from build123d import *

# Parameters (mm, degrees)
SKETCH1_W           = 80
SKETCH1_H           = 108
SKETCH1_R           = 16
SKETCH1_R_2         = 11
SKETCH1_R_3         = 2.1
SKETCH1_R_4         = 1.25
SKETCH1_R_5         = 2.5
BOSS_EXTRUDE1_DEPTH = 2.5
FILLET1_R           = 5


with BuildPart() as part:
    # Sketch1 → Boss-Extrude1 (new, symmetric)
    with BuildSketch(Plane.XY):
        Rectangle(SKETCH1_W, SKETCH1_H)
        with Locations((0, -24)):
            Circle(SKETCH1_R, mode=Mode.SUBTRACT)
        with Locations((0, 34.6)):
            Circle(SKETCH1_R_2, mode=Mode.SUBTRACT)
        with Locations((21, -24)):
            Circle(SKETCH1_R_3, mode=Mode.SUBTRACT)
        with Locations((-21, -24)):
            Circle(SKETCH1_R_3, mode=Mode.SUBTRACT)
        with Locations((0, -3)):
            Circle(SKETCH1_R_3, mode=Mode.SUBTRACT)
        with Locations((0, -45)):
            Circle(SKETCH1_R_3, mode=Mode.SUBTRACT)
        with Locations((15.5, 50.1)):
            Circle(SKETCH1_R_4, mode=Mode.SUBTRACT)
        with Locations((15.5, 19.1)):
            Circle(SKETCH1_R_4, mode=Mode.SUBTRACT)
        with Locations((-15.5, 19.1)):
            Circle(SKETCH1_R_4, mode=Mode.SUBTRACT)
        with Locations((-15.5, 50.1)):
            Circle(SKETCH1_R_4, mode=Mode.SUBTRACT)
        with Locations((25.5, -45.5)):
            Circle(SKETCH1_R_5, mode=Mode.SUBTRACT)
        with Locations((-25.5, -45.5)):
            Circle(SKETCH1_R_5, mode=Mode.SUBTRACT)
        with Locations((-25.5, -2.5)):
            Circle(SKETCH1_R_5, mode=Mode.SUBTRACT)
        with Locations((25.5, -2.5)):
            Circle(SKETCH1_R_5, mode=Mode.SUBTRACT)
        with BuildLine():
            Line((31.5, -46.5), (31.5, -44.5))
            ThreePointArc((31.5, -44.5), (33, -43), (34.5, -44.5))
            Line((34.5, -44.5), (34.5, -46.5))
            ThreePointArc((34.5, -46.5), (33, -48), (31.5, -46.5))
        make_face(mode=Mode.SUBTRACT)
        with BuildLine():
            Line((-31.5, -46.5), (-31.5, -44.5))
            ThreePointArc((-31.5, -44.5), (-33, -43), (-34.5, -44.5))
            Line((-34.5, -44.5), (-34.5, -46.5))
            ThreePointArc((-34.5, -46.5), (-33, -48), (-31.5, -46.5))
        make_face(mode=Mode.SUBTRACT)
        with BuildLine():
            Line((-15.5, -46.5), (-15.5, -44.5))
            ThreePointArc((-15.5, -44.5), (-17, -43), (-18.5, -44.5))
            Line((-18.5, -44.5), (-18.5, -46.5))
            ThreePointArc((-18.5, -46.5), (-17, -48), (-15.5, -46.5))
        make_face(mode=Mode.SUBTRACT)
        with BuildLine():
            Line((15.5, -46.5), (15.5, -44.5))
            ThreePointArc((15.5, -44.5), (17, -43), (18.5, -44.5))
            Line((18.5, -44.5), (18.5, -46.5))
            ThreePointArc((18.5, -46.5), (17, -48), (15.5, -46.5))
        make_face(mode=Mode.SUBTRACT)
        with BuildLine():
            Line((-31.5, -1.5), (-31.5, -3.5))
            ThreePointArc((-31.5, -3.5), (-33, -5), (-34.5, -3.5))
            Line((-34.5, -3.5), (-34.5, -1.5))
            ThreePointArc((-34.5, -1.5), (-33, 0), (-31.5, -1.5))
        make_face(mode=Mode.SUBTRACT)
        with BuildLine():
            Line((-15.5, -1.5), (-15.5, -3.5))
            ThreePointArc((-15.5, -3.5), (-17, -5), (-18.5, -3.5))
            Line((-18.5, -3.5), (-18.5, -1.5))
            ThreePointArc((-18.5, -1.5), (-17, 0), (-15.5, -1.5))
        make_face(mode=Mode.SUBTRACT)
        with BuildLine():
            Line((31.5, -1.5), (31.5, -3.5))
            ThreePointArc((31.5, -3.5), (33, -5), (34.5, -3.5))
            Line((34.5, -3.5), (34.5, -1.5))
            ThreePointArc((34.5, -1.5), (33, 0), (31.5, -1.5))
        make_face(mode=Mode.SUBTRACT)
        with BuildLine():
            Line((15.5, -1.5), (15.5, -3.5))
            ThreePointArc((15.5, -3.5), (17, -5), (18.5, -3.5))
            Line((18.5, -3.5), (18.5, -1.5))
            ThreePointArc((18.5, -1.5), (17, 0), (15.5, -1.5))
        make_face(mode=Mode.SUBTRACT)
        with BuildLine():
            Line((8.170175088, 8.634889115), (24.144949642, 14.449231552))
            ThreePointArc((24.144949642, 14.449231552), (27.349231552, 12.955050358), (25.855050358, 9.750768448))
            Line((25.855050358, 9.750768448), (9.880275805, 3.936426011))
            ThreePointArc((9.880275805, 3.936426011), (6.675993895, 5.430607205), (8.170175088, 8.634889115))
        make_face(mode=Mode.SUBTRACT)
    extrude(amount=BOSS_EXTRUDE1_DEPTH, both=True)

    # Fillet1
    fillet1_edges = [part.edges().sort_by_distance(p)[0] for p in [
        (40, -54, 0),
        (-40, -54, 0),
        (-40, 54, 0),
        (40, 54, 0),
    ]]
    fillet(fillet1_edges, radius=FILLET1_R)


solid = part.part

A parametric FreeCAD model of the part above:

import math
import FreeCAD as App
import Part
import Sketcher
Q = App.Units.Quantity


def edges_at(feature, points):
    """Names of the edges that pass closest to the given points."""
    edges = feature.Shape.Edges
    near = lambda p: min(range(len(edges)), key=lambda i: edges[i].distToShape(Part.Vertex(*p))[0])
    return sorted({f"Edge{near(p) + 1}" for p in points})


def add_polygon(sketch, points):
    """Adds a closed chain of lines whose ends are joined by coincident constraints."""
    first, n = sketch.GeometryCount, len(points)
    for a, b in zip(points, points[1:] + points[:1]):
        sketch.addGeometry(Part.LineSegment(App.Vector(*a, 0), App.Vector(*b, 0)), False)
    for i in range(n):
        sketch.addConstraint(Sketcher.Constraint("Coincident", first + i, 2, first + (i + 1) % n, 1))

doc = App.newDocument("Part")
body = doc.addObject("PartDesign::Body", "Body")

# Sketch on XY plane
sketch1 = body.newObject("Sketcher::SketchObject", "Sketch")
sketch1.AttachmentSupport = (doc.getObject("XY_Plane"), [""])
sketch1.MapMode = "FlatFace"
add_polygon(sketch1, [(-40, 54), (-40, -54), (40, -54), (40, 54)])  # lines 0-3
sketch1.addGeometry(Part.LineSegment(App.Vector(-31.5, -44.5, 0), App.Vector(-31.5, -46.5, 0)), False)  # 4
sketch1.addGeometry(Part.ArcOfCircle(Part.Circle(App.Vector(-33, -46.5, 0), App.Vector(0, 0, 1), 1.5), math.radians(180), math.radians(360)), False)  # 5
sketch1.addGeometry(Part.LineSegment(App.Vector(-34.5, -46.5, 0), App.Vector(-34.5, -44.5, 0)), False)  # 6
sketch1.addGeometry(Part.ArcOfCircle(Part.Circle(App.Vector(-33, -44.5, 0), App.Vector(0, 0, 1), 1.5), math.radians(0), math.radians(180)), False)  # 7
sketch1.addGeometry(Part.Circle(App.Vector(-25.5, -45.5, 0), App.Vector(0, 0, 1), 2.5), False)  # 8
sketch1.addGeometry(Part.Circle(App.Vector(-21, -24, 0), App.Vector(0, 0, 1), 2.1), False)  # 9
sketch1.addGeometry(Part.LineSegment(App.Vector(-15.5, -44.5, 0), App.Vector(-15.5, -46.5, 0)), False)  # 10
sketch1.addGeometry(Part.ArcOfCircle(Part.Circle(App.Vector(-17, -46.5, 0), App.Vector(0, 0, 1), 1.5), math.radians(180), math.radians(360)), False)  # 11
sketch1.addGeometry(Part.LineSegment(App.Vector(-18.5, -46.5, 0), App.Vector(-18.5, -44.5, 0)), False)  # 12
sketch1.addGeometry(Part.ArcOfCircle(Part.Circle(App.Vector(-17, -44.5, 0), App.Vector(0, 0, 1), 1.5), math.radians(0), math.radians(180)), False)  # 13
sketch1.addGeometry(Part.ArcOfCircle(Part.Circle(App.Vector(-33, -1.5, 0), App.Vector(0, 0, 1), 1.5), math.radians(0), math.radians(180)), False)  # 14
sketch1.addGeometry(Part.LineSegment(App.Vector(-31.5, -1.5, 0), App.Vector(-31.5, -3.5, 0)), False)  # 15
sketch1.addGeometry(Part.ArcOfCircle(Part.Circle(App.Vector(-33, -3.5, 0), App.Vector(0, 0, 1), 1.5), math.radians(180), math.radians(360)), False)  # 16
sketch1.addGeometry(Part.LineSegment(App.Vector(-34.5, -3.5, 0), App.Vector(-34.5, -1.5, 0)), False)  # 17
sketch1.addGeometry(Part.Circle(App.Vector(-25.5, -2.5, 0), App.Vector(0, 0, 1), 2.5), False)  # 18
sketch1.addGeometry(Part.ArcOfCircle(Part.Circle(App.Vector(-17, -1.5, 0), App.Vector(0, 0, 1), 1.5), math.radians(0), math.radians(180)), False)  # 19
sketch1.addGeometry(Part.LineSegment(App.Vector(-15.5, -1.5, 0), App.Vector(-15.5, -3.5, 0)), False)  # 20
sketch1.addGeometry(Part.ArcOfCircle(Part.Circle(App.Vector(-17, -3.5, 0), App.Vector(0, 0, 1), 1.5), math.radians(180), math.radians(360)), False)  # 21
sketch1.addGeometry(Part.LineSegment(App.Vector(-18.5, -3.5, 0), App.Vector(-18.5, -1.5, 0)), False)  # 22
sketch1.addGeometry(Part.Circle(App.Vector(0, -45, 0), App.Vector(0, 0, 1), 2.1), False)  # 23
sketch1.addGeometry(Part.ArcOfCircle(Part.Circle(App.Vector(17, -46.5, 0), App.Vector(0, 0, 1), 1.5), math.radians(180), math.radians(360)), False)  # 24
sketch1.addGeometry(Part.LineSegment(App.Vector(15.5, -46.5, 0), App.Vector(15.5, -44.5, 0)), False)  # 25
sketch1.addGeometry(Part.ArcOfCircle(Part.Circle(App.Vector(17, -44.5, 0), App.Vector(0, 0, 1), 1.5), math.radians(0), math.radians(180)), False)  # 26
sketch1.addGeometry(Part.LineSegment(App.Vector(18.5, -44.5, 0), App.Vector(18.5, -46.5, 0)), False)  # 27
sketch1.addGeometry(Part.Circle(App.Vector(0, -24, 0), App.Vector(0, 0, 1), 16), False)  # 28
sketch1.addGeometry(Part.Circle(App.Vector(25.5, -45.5, 0), App.Vector(0, 0, 1), 2.5), False)  # 29
sketch1.addGeometry(Part.ArcOfCircle(Part.Circle(App.Vector(33, -46.5, 0), App.Vector(0, 0, 1), 1.5), math.radians(180), math.radians(360)), False)  # 30
sketch1.addGeometry(Part.LineSegment(App.Vector(31.5, -46.5, 0), App.Vector(31.5, -44.5, 0)), False)  # 31
sketch1.addGeometry(Part.ArcOfCircle(Part.Circle(App.Vector(33, -44.5, 0), App.Vector(0, 0, 1), 1.5), math.radians(0), math.radians(180)), False)  # 32
sketch1.addGeometry(Part.LineSegment(App.Vector(34.5, -44.5, 0), App.Vector(34.5, -46.5, 0)), False)  # 33
sketch1.addGeometry(Part.Circle(App.Vector(21, -24, 0), App.Vector(0, 0, 1), 2.1), False)  # 34
sketch1.addGeometry(Part.Circle(App.Vector(0, -3, 0), App.Vector(0, 0, 1), 2.1), False)  # 35
sketch1.addGeometry(Part.LineSegment(App.Vector(15.5, -3.5, 0), App.Vector(15.5, -1.5, 0)), False)  # 36
sketch1.addGeometry(Part.ArcOfCircle(Part.Circle(App.Vector(17, -1.5, 0), App.Vector(0, 0, 1), 1.5), math.radians(0), math.radians(180)), False)  # 37
sketch1.addGeometry(Part.LineSegment(App.Vector(18.5, -1.5, 0), App.Vector(18.5, -3.5, 0)), False)  # 38
sketch1.addGeometry(Part.ArcOfCircle(Part.Circle(App.Vector(17, -3.5, 0), App.Vector(0, 0, 1), 1.5), math.radians(180), math.radians(360)), False)  # 39
sketch1.addGeometry(Part.Circle(App.Vector(25.5, -2.5, 0), App.Vector(0, 0, 1), 2.5), False)  # 40
sketch1.addGeometry(Part.LineSegment(App.Vector(31.5, -3.5, 0), App.Vector(31.5, -1.5, 0)), False)  # 41
sketch1.addGeometry(Part.ArcOfCircle(Part.Circle(App.Vector(33, -1.5, 0), App.Vector(0, 0, 1), 1.5), math.radians(0), math.radians(180)), False)  # 42
sketch1.addGeometry(Part.LineSegment(App.Vector(34.5, -1.5, 0), App.Vector(34.5, -3.5, 0)), False)  # 43
sketch1.addGeometry(Part.ArcOfCircle(Part.Circle(App.Vector(33, -3.5, 0), App.Vector(0, 0, 1), 1.5), math.radians(180), math.radians(360)), False)  # 44
sketch1.addGeometry(Part.Circle(App.Vector(-15.5, 19.1, 0), App.Vector(0, 0, 1), 1.25), False)  # 45
sketch1.addGeometry(Part.Circle(App.Vector(-15.5, 50.1, 0), App.Vector(0, 0, 1), 1.25), False)  # 46
sketch1.addGeometry(Part.ArcOfCircle(Part.Circle(App.Vector(9.025225, 6.285658, 0), App.Vector(0, 0, 1), 2.5), math.radians(110), math.radians(290)), False)  # 47
sketch1.addGeometry(Part.LineSegment(App.Vector(8.170175, 8.634889, 0), App.Vector(24.14495, 14.449232, 0)), False)  # 48
sketch1.addGeometry(Part.ArcOfCircle(Part.Circle(App.Vector(25, 12.1, 0), App.Vector(0, 0, 1), 2.5), math.radians(-70), math.radians(110)), False)  # 49
sketch1.addGeometry(Part.LineSegment(App.Vector(25.85505, 9.750768, 0), App.Vector(9.880276, 3.936426, 0)), False)  # 50
sketch1.addGeometry(Part.Circle(App.Vector(15.5, 19.1, 0), App.Vector(0, 0, 1), 1.25), False)  # 51
sketch1.addGeometry(Part.Circle(App.Vector(0, 34.6, 0), App.Vector(0, 0, 1), 11), False)  # 52
sketch1.addGeometry(Part.Circle(App.Vector(15.5, 50.1, 0), App.Vector(0, 0, 1), 1.25), False)  # 53
sketch1.addConstraint(Sketcher.Constraint("Tangent", 4, 2, 5, 2))
sketch1.addConstraint(Sketcher.Constraint("Tangent", 5, 1, 6, 1))
sketch1.addConstraint(Sketcher.Constraint("Tangent", 6, 2, 7, 2))
sketch1.addConstraint(Sketcher.Constraint("Tangent", 7, 1, 4, 1))
sketch1.addConstraint(Sketcher.Constraint("Tangent", 10, 2, 11, 2))
sketch1.addConstraint(Sketcher.Constraint("Tangent", 11, 1, 12, 1))
sketch1.addConstraint(Sketcher.Constraint("Tangent", 12, 2, 13, 2))
sketch1.addConstraint(Sketcher.Constraint("Tangent", 13, 1, 10, 1))
sketch1.addConstraint(Sketcher.Constraint("Tangent", 14, 1, 15, 1))
sketch1.addConstraint(Sketcher.Constraint("Tangent", 15, 2, 16, 2))
sketch1.addConstraint(Sketcher.Constraint("Tangent", 16, 1, 17, 1))
sketch1.addConstraint(Sketcher.Constraint("Tangent", 17, 2, 14, 2))
sketch1.addConstraint(Sketcher.Constraint("Tangent", 19, 1, 20, 1))
sketch1.addConstraint(Sketcher.Constraint("Tangent", 20, 2, 21, 2))
sketch1.addConstraint(Sketcher.Constraint("Tangent", 21, 1, 22, 1))
sketch1.addConstraint(Sketcher.Constraint("Tangent", 22, 2, 19, 2))
sketch1.addConstraint(Sketcher.Constraint("Tangent", 24, 1, 25, 1))
sketch1.addConstraint(Sketcher.Constraint("Tangent", 25, 2, 26, 2))
sketch1.addConstraint(Sketcher.Constraint("Tangent", 26, 1, 27, 1))
sketch1.addConstraint(Sketcher.Constraint("Tangent", 27, 2, 24, 2))
sketch1.addConstraint(Sketcher.Constraint("Tangent", 30, 1, 31, 1))
sketch1.addConstraint(Sketcher.Constraint("Tangent", 31, 2, 32, 2))
sketch1.addConstraint(Sketcher.Constraint("Tangent", 32, 1, 33, 1))
sketch1.addConstraint(Sketcher.Constraint("Tangent", 33, 2, 30, 2))
sketch1.addConstraint(Sketcher.Constraint("Tangent", 36, 2, 37, 2))
sketch1.addConstraint(Sketcher.Constraint("Tangent", 37, 1, 38, 1))
sketch1.addConstraint(Sketcher.Constraint("Tangent", 38, 2, 39, 2))
sketch1.addConstraint(Sketcher.Constraint("Tangent", 39, 1, 36, 1))
sketch1.addConstraint(Sketcher.Constraint("Tangent", 41, 2, 42, 2))
sketch1.addConstraint(Sketcher.Constraint("Tangent", 42, 1, 43, 1))
sketch1.addConstraint(Sketcher.Constraint("Tangent", 43, 2, 44, 2))
sketch1.addConstraint(Sketcher.Constraint("Tangent", 44, 1, 41, 1))
sketch1.addConstraint(Sketcher.Constraint("Tangent", 47, 1, 48, 1))
sketch1.addConstraint(Sketcher.Constraint("Tangent", 48, 2, 49, 2))
sketch1.addConstraint(Sketcher.Constraint("Tangent", 49, 1, 50, 1))
sketch1.addConstraint(Sketcher.Constraint("Tangent", 50, 2, 47, 2))
sketch1.addConstraint(Sketcher.Constraint("Vertical", 0))
sketch1.addConstraint(Sketcher.Constraint("Horizontal", 1))
sketch1.addConstraint(Sketcher.Constraint("Vertical", 2))
sketch1.addConstraint(Sketcher.Constraint("Horizontal", 3))
sketch1.addConstraint(Sketcher.Constraint("Vertical", 4))
sketch1.addConstraint(Sketcher.Constraint("Vertical", 6))
sketch1.addConstraint(Sketcher.Constraint("Vertical", 10))
sketch1.addConstraint(Sketcher.Constraint("Vertical", 12))
sketch1.addConstraint(Sketcher.Constraint("Vertical", 15))
sketch1.addConstraint(Sketcher.Constraint("Vertical", 17))
sketch1.addConstraint(Sketcher.Constraint("Vertical", 20))
sketch1.addConstraint(Sketcher.Constraint("Vertical", 22))
sketch1.addConstraint(Sketcher.Constraint("Vertical", 25))
sketch1.addConstraint(Sketcher.Constraint("Vertical", 27))
sketch1.addConstraint(Sketcher.Constraint("Vertical", 31))
sketch1.addConstraint(Sketcher.Constraint("Vertical", 33))
sketch1.addConstraint(Sketcher.Constraint("Vertical", 36))
sketch1.addConstraint(Sketcher.Constraint("Vertical", 38))
sketch1.addConstraint(Sketcher.Constraint("Vertical", 41))
sketch1.addConstraint(Sketcher.Constraint("Vertical", 43))
sketch1.addConstraint(Sketcher.Constraint("Equal", 7, 11))
sketch1.addConstraint(Sketcher.Constraint("Equal", 13, 14))
sketch1.addConstraint(Sketcher.Constraint("Equal", 8, 18))
sketch1.addConstraint(Sketcher.Constraint("Equal", 16, 19))
sketch1.addConstraint(Sketcher.Constraint("Equal", 9, 23))
sketch1.addConstraint(Sketcher.Constraint("Equal", 21, 24))
sketch1.addConstraint(Sketcher.Constraint("Equal", 18, 29))
sketch1.addConstraint(Sketcher.Constraint("Equal", 26, 30))
sketch1.addConstraint(Sketcher.Constraint("Equal", 23, 34))
sketch1.addConstraint(Sketcher.Constraint("Equal", 34, 35))
sketch1.addConstraint(Sketcher.Constraint("Equal", 32, 37))
sketch1.addConstraint(Sketcher.Constraint("Equal", 29, 40))
sketch1.addConstraint(Sketcher.Constraint("Equal", 39, 42))
sketch1.addConstraint(Sketcher.Constraint("Equal", 45, 46))
sketch1.addConstraint(Sketcher.Constraint("Equal", 40, 47))
sketch1.addConstraint(Sketcher.Constraint("Equal", 47, 49))
sketch1.addConstraint(Sketcher.Constraint("Equal", 46, 51))
sketch1.addConstraint(Sketcher.Constraint("Equal", 51, 53))
sketch1.addConstraint(Sketcher.Constraint("Symmetric", 0, 2, 2, 2, -1, 1))
sketch1.addConstraint(Sketcher.Constraint("Symmetric", 11, 3, 24, 3, -2))
sketch1.addConstraint(Sketcher.Constraint("Symmetric", 8, 3, 29, 3, -2))
sketch1.addConstraint(Sketcher.Constraint("Symmetric", 5, 3, 30, 3, -2))
sketch1.addConstraint(Sketcher.Constraint("Symmetric", 9, 3, 34, 3, -2))
sketch1.addConstraint(Sketcher.Constraint("Symmetric", 19, 3, 37, 3, -2))
sketch1.addConstraint(Sketcher.Constraint("Symmetric", 18, 3, 40, 3, -2))
sketch1.addConstraint(Sketcher.Constraint("Symmetric", 14, 3, 42, 3, -2))
sketch1.addConstraint(Sketcher.Constraint("Symmetric", 45, 3, 51, 3, -2))
sketch1.addConstraint(Sketcher.Constraint("Symmetric", 46, 3, 53, 3, -2))
sketch1.addConstraint(Sketcher.Constraint("PointOnObject", 23, 3, -2))
sketch1.addConstraint(Sketcher.Constraint("PointOnObject", 28, 3, -2))
sketch1.addConstraint(Sketcher.Constraint("PointOnObject", 35, 3, -2))
sketch1.addConstraint(Sketcher.Constraint("PointOnObject", 52, 3, -2))
sketch1.addConstraint(Sketcher.Constraint("Horizontal", 5, 3, 11, 3))
sketch1.addConstraint(Sketcher.Constraint("Horizontal", 7, 3, 13, 3))
sketch1.addConstraint(Sketcher.Constraint("Horizontal", 14, 3, 19, 3))
sketch1.addConstraint(Sketcher.Constraint("Horizontal", 16, 3, 21, 3))
sketch1.addConstraint(Sketcher.Constraint("Horizontal", 13, 3, 26, 3))
sketch1.addConstraint(Sketcher.Constraint("Horizontal", 9, 3, 28, 3))
sketch1.addConstraint(Sketcher.Constraint("Horizontal", 26, 3, 32, 3))
sketch1.addConstraint(Sketcher.Constraint("Horizontal", 21, 3, 39, 3))
sketch1.addConstraint(Sketcher.Constraint("Horizontal", 39, 3, 44, 3))
sketch1.addConstraint(Sketcher.Constraint("Vertical", 7, 3, 14, 3))
sketch1.addConstraint(Sketcher.Constraint("Vertical", 8, 3, 18, 3))
sketch1.addConstraint(Sketcher.Constraint("Vertical", 13, 3, 19, 3))
sketch1.addConstraint(Sketcher.Constraint("Vertical", 45, 3, 46, 3))
sketch1.addConstraint(Sketcher.Constraint("Vertical", 46, 3, 10, 2))
sketch1.addConstraint(Sketcher.Constraint("Equal", 12, 15))
sketch1.addConstraint(Sketcher.Constraint("Diameter", 8, 5.0))
sketch1.addConstraint(Sketcher.Constraint("Diameter", 28, 32.0))
sketch1.addConstraint(Sketcher.Constraint("Diameter", 52, 22.0))
sketch1.addConstraint(Sketcher.Constraint("Diameter", 9, 4.2))
sketch1.addConstraint(Sketcher.Constraint("Diameter", 45, 2.5))
sketch1.addConstraint(Sketcher.Constraint("Radius", 5, 1.5))
sketch1.addConstraint(Sketcher.Constraint("DistanceX", 1, 1, 1, 2, 80.0))
sketch1.addConstraint(Sketcher.Constraint("DistanceY", 0, 2, 0, 1, 108.0))
sketch1.addConstraint(Sketcher.Constraint("DistanceY", 4, 2, 4, 1, 2.0))
sketch1.addConstraint(Sketcher.Constraint("Angle", 48, Q("20 deg")))
sketch1.addConstraint(Sketcher.Constraint("Distance", 48, 17.0))
sketch1.addConstraint(Sketcher.Constraint("DistanceX", 5, 3, -1, 1, 33.0))
sketch1.addConstraint(Sketcher.Constraint("DistanceX", 9, 3, -1, 1, 21.0))
sketch1.addConstraint(Sketcher.Constraint("DistanceY", 9, 3, -1, 1, 24.0))
sketch1.addConstraint(Sketcher.Constraint("DistanceX", 11, 3, -1, 1, 17.0))
sketch1.addConstraint(Sketcher.Constraint("DistanceY", 23, 3, -1, 1, 45.0))
sketch1.addConstraint(Sketcher.Constraint("DistanceY", 35, 3, -1, 1, 3.0))
sketch1.addConstraint(Sketcher.Constraint("DistanceX", -1, 1, 49, 3, 25.0))
sketch1.addConstraint(Sketcher.Constraint("DistanceY", 5, 3, -1, 1, 46.5))
sketch1.addConstraint(Sketcher.Constraint("DistanceX", 8, 3, -1, 1, 25.5))
sketch1.addConstraint(Sketcher.Constraint("DistanceY", 8, 3, -1, 1, 45.5))
sketch1.addConstraint(Sketcher.Constraint("DistanceY", 14, 3, -1, 1, 1.5))
sketch1.addConstraint(Sketcher.Constraint("DistanceY", 18, 3, -1, 1, 2.5))
sketch1.addConstraint(Sketcher.Constraint("DistanceY", -1, 1, 45, 3, 19.1))
sketch1.addConstraint(Sketcher.Constraint("DistanceY", -1, 1, 46, 3, 50.1))
sketch1.addConstraint(Sketcher.Constraint("DistanceY", -1, 1, 49, 3, 12.1))
sketch1.addConstraint(Sketcher.Constraint("DistanceY", -1, 1, 52, 3, 34.6))
pad1 = body.newObject("PartDesign::Pad", "Pad")
pad1.Profile = sketch1
pad1.Length = 5
pad1.Midplane = True
doc.recompute()

fillet = body.newObject("PartDesign::Fillet", "Fillet")
fillet.Base = (pad1, edges_at(pad1, [
    (40, -54, 0),
    (-40, -54, 0),
    (-40, 54, 0),
    (40, 54, 0),
]))
fillet.Radius = 5

doc.recompute()
